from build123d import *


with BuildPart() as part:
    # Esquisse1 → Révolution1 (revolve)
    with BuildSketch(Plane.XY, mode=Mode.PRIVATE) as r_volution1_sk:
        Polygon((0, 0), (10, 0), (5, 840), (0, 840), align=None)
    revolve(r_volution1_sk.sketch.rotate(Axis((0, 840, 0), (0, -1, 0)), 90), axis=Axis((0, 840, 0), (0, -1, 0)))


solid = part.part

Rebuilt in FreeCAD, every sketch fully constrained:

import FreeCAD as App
import Part
import Sketcher
from FreeCAD import Vector


def add_polygon(sketch, points):
    """Adds a closed chain of lines whose ends are joined by coincident constraints."""
    first, n = sketch.GeometryCount, len(points)
    for a, b in zip(points, points[1:] + points[:1]):
        sketch.addGeometry(Part.LineSegment(App.Vector(*a, 0), App.Vector(*b, 0)), False)
    for i in range(n):
        sketch.addConstraint(Sketcher.Constraint("Coincident", first + i, 2, first + (i + 1) % n, 1))

doc = App.newDocument("Part")
body = doc.addObject("PartDesign::Body", "Body")

# Sketch on XY plane
sketch1 = body.newObject("Sketcher::SketchObject", "Sketch")
sketch1.AttachmentSupport = (doc.getObject("XY_Plane"), [""])
sketch1.MapMode = "FlatFace"
add_polygon(sketch1, [(0, 0), (10, 0), (5, 840), (0, 840)])  # lines 0-3
sketch1.addConstraint([
    Sketcher.Constraint("Horizontal", 0),
    Sketcher.Constraint("Horizontal", 2),
    Sketcher.Constraint("Vertical", 3),
    Sketcher.Constraint("Coincident", 3, 2, -1, 1),
    Sketcher.Constraint("DistanceX", 0, 1, 0, 2, 10.0),
    Sketcher.Constraint("DistanceX", 2, 2, 2, 1, 5.0),
    Sketcher.Constraint("DistanceY", 3, 2, 3, 1, 840.0),
])
revolution = body.newObject("PartDesign::Revolution", "Revolution")
revolution.Profile = sketch1
revolution.ReferenceAxis = (sketch1, ["V_Axis"])
revolution.Angle = 360

doc.recompute()
